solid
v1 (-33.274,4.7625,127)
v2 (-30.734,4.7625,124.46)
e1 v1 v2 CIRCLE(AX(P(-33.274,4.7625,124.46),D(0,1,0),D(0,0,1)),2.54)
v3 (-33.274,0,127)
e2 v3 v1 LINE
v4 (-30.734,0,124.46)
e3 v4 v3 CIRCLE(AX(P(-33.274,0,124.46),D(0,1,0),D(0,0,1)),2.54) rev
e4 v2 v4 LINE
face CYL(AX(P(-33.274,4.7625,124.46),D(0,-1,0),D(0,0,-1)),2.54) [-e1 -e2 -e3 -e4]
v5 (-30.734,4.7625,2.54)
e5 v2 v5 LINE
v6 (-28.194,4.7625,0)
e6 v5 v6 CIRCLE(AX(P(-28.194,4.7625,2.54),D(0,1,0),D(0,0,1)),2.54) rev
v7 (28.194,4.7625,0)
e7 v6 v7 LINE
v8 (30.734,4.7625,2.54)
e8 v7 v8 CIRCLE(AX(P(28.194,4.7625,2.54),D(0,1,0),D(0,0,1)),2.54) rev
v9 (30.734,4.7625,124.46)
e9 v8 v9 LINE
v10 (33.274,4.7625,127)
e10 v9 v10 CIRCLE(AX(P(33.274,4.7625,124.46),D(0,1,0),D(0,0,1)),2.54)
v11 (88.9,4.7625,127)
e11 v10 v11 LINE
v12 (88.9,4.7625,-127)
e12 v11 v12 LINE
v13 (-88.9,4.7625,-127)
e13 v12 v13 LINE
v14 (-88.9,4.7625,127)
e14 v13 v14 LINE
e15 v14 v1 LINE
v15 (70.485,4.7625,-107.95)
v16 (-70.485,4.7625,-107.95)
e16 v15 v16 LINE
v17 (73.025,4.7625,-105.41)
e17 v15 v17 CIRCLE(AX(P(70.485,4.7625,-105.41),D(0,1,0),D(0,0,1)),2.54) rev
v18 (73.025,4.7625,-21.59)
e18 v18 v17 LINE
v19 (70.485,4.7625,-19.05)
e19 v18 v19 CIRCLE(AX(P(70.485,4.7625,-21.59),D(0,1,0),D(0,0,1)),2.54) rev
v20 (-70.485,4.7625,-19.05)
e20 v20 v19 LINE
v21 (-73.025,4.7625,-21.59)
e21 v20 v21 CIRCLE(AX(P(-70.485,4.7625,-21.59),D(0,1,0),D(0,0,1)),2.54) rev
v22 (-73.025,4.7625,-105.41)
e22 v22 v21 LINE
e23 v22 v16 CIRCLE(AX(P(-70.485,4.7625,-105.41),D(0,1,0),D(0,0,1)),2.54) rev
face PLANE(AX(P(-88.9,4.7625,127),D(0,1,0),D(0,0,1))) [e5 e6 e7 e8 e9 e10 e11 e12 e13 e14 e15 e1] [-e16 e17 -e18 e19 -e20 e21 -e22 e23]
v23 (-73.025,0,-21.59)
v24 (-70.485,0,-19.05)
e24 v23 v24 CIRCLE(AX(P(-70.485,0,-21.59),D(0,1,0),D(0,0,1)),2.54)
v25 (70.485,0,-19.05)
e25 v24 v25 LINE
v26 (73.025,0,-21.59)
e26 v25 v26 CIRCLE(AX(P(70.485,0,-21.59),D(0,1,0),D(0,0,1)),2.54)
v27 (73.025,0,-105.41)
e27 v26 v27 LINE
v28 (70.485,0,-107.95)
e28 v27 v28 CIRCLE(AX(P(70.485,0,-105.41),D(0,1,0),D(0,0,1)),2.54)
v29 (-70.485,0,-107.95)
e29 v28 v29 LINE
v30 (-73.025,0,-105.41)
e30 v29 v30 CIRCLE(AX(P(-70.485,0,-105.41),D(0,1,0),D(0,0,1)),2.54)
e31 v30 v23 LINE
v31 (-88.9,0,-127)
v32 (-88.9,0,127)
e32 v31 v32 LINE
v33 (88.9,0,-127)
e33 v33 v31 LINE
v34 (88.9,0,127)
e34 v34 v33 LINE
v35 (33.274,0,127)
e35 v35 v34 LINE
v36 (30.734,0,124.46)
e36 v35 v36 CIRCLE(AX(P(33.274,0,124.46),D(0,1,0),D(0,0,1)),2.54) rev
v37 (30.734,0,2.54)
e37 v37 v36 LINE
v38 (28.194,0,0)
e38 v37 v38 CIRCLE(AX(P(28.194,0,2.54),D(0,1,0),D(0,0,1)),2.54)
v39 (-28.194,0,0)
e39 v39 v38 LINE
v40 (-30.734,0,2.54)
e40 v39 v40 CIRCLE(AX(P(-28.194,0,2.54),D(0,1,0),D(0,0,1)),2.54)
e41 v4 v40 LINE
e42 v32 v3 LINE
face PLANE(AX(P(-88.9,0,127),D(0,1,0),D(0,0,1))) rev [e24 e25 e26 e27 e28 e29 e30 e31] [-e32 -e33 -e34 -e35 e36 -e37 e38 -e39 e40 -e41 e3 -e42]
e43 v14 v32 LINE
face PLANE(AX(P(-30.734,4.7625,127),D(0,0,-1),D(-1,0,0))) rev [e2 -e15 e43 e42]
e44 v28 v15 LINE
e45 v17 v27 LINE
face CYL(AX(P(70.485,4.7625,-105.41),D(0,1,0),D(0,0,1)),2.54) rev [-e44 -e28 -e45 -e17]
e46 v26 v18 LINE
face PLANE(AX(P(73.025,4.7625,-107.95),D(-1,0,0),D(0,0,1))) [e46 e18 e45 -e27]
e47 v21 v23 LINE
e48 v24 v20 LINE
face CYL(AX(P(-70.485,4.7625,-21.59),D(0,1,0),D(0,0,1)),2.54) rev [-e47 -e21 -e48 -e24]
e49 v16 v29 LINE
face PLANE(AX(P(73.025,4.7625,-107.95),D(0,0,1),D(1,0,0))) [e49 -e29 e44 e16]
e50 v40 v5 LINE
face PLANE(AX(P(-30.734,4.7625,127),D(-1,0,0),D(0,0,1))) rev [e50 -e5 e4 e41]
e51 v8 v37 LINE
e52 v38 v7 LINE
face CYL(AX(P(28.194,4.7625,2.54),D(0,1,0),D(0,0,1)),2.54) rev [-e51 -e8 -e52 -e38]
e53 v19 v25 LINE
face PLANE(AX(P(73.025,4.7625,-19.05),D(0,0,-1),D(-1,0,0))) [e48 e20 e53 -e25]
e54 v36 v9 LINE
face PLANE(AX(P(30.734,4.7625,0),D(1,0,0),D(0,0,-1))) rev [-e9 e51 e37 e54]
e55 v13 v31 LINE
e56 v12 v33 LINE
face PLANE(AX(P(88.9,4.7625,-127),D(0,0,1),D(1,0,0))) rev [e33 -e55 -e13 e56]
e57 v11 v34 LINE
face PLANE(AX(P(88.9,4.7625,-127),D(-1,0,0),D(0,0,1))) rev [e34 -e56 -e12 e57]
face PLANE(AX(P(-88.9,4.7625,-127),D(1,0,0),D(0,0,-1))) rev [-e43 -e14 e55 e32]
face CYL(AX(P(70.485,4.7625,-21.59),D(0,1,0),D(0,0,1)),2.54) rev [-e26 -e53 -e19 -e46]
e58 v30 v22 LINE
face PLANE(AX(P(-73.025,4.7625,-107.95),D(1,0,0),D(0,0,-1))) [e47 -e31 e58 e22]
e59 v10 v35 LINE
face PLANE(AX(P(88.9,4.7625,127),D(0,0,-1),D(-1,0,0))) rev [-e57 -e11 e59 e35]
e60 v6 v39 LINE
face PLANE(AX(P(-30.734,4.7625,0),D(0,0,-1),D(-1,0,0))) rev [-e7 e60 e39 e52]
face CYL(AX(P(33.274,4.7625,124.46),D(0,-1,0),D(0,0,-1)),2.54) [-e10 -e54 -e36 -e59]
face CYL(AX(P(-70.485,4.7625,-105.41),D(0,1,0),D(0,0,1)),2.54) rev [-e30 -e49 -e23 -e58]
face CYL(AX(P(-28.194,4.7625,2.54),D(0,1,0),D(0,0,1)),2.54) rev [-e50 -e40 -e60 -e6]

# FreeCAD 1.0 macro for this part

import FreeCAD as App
import Part
import Sketcher
Q = App.Units.Quantity


def edges_at(feature, points):
    """Names of the edges that pass closest to the given points."""
    edges = feature.Shape.Edges
    near = lambda p: min(range(len(edges)), key=lambda i: edges[i].distToShape(Part.Vertex(*p))[0])
    return sorted({f"Edge{near(p) + 1}" for p in points})

doc = App.newDocument("Part")
body = doc.addObject("PartDesign::Body", "Body")

sketch1 = body.newObject("Sketcher::SketchObject", "Sketch")
sketch1.AttachmentSupport = (doc.getObject("XZ_Plane"), [""])
sketch1.MapMode = "FlatFace"
sketch1.addGeometry([
    Part.LineSegment(App.Vector(-31, 127, 0), App.Vector(-31, 0, 0)),
    Part.LineSegment(App.Vector(-31, 0, 0), App.Vector(31, 0, 0)),
    Part.LineSegment(App.Vector(31, 0, 0), App.Vector(31, 127, 0)),
    Part.LineSegment(App.Vector(31, 127, 0), App.Vector(89, 127, 0)),
    Part.LineSegment(App.Vector(89, 127, 0), App.Vector(89, -127, 0)),
    Part.LineSegment(App.Vector(89, -127, 0), App.Vector(-89, -127, 0)),
    Part.LineSegment(App.Vector(-89, -127, 0), App.Vector(-89, 127, 0)),
    Part.LineSegment(App.Vector(-89, 127, 0), App.Vector(-31, 127, 0)),
    Part.LineSegment(App.Vector(73, -19, 0), App.Vector(-73, -19, 0)),
    Part.LineSegment(App.Vector(-73, -19, 0), App.Vector(-73, -108, 0)),
    Part.LineSegment(App.Vector(-73, -108, 0), App.Vector(73, -108, 0)),
    Part.LineSegment(App.Vector(73, -108, 0), App.Vector(73, -19, 0)),
], False)
sketch1.addConstraint([
    Sketcher.Constraint("Coincident", 0, 2, 1, 1),
    Sketcher.Constraint("Coincident", 1, 2, 2, 1),
    Sketcher.Constraint("Coincident", 2, 2, 3, 1),
    Sketcher.Constraint("Coincident", 3, 2, 4, 1),
    Sketcher.Constraint("Coincident", 4, 2, 5, 1),
    Sketcher.Constraint("Coincident", 5, 2, 6, 1),
    Sketcher.Constraint("Coincident", 6, 2, 7, 1),
    Sketcher.Constraint("Coincident", 7, 2, 0, 1),
    Sketcher.Constraint("Coincident", 8, 2, 9, 1),
    Sketcher.Constraint("Coincident", 9, 2, 10, 1),
    Sketcher.Constraint("Coincident", 10, 2, 11, 1),
    Sketcher.Constraint("Coincident", 11, 2, 8, 1),
    Sketcher.Constraint("Vertical", 0),
    Sketcher.Constraint("Horizontal", 1),
    Sketcher.Constraint("Vertical", 2),
    Sketcher.Constraint("Horizontal", 3),
    Sketcher.Constraint("Vertical", 4),
    Sketcher.Constraint("Horizontal", 5),
    Sketcher.Constraint("Vertical", 6),
    Sketcher.Constraint("Horizontal", 7),
    Sketcher.Constraint("Horizontal", 8),
    Sketcher.Constraint("Vertical", 9),
    Sketcher.Constraint("Horizontal", 10),
    Sketcher.Constraint("Vertical", 11),
    Sketcher.Constraint("Symmetric", 0, 2, 1, 2, -1, 1),
    Sketcher.Constraint("Symmetric", 3, 2, 5, 2, -1, 1),
    Sketcher.Constraint("Horizontal", 3, 2, 6, 2),
    Sketcher.Constraint("DistanceX", 5, 2, 5, 1, Q("7 in")),
    Sketcher.Constraint("DistanceY", 0, 2, 0, 1, Q("5 in")),
    Sketcher.Constraint("DistanceY", 9, 2, 9, 1, Q("3.5 in")),
    Sketcher.Constraint("DistanceX", 1, 1, 1, 2, Q("2.42 in")),
    Sketcher.Constraint("DistanceX", 8, 2, 8, 1, Q("5.75 in")),
    Sketcher.Constraint("DistanceY", 8, 2, -1, 1, Q("0.75 in")),
    Sketcher.Constraint("DistanceX", 8, 2, -1, 1, Q("2.875 in")),
])
pad1 = body.newObject("PartDesign::Pad", "Pad")
pad1.Profile = sketch1
pad1.Length = Q("0.1875 in")
pad1.Reversed = True
doc.recompute()

fillet = body.newObject("PartDesign::Fillet", "Fillet")
fillet.Base = (pad1, edges_at(pad1, [
    (30.734, 2.381, 127),
    (30.734, 2.381, 0),
    (-30.734, 2.381, 0),
    (-30.734, 2.381, 127),
    (-73.025, 2.381, -107.95),
    (-73.025, 2.381, -19.05),
    (73.025, 2.381, -19.05),
    (73.025, 2.381, -107.95),
]))
fillet.Radius = Q("0.1 in")

doc.recompute()
